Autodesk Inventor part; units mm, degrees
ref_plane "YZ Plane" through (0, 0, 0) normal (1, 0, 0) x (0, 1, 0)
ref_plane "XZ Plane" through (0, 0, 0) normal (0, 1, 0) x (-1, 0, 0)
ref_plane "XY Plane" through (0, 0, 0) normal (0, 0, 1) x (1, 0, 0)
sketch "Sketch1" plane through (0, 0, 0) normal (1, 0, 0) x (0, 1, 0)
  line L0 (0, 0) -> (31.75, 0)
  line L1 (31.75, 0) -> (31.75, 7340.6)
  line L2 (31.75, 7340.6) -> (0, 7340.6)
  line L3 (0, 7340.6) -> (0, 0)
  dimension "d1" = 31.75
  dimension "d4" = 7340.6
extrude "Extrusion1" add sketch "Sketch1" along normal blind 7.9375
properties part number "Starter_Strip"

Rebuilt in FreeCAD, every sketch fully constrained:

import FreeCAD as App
import Part
import Sketcher

V = App.Vector
Q = App.Units.Quantity


def add_polygon(sketch, points):
    """Adds a closed chain of lines whose ends are joined by coincident constraints."""
    first, n = sketch.GeometryCount, len(points)
    for a, b in zip(points, points[1:] + points[:1]):
        sketch.addGeometry(Part.LineSegment(App.Vector(*a, 0), App.Vector(*b, 0)), False)
    for i in range(n):
        sketch.addConstraint(Sketcher.Constraint("Coincident", first + i, 2, first + (i + 1) % n, 1))

doc = App.newDocument("Part")
params = doc.addObject("Spreadsheet::Sheet", "Params")
for row, (alias, value) in enumerate([
    ("sketch1_height", "289 in"),
    ("sketch1_width", "1.25 in"),
    ("pad1_length", "0.3125 in"),
], start=1):
    params.set(f"A{row}", alias)
    params.set(f"B{row}", "=" + value)
    params.setAlias(f"B{row}", alias)

body = doc.addObject("PartDesign::Body", "Body")

sketch1 = doc.addObject("Sketcher::SketchObject", "Sketch")
body.addObject(sketch1)
sketch1.AttachmentSupport = (doc.YZ_Plane, [""])
sketch1.MapMode = "FlatFace"
add_polygon(sketch1, [(0, 7341), (0, 0), (32, 0), (32, 7341)])
sketch1.addConstraint([
    Sketcher.Constraint("Vertical", 0),
    Sketcher.Constraint("Horizontal", 1),
    Sketcher.Constraint("Vertical", 2),
    Sketcher.Constraint("Horizontal", 3),
    Sketcher.Constraint("Coincident", 0, 2, -1, 1),
    Sketcher.Constraint("DistanceY", 0, 2, 0, 1, Q("289 in")),
    Sketcher.Constraint("DistanceX", 1, 1, 1, 2, Q("1.25 in")),
])
sketch1.setExpression("Constraints[9]", "Params.sketch1_height")
sketch1.setExpression("Constraints[10]", "Params.sketch1_width")
pad1 = doc.addObject("PartDesign::Pad", "Pad")
body.addObject(pad1)
pad1.Profile = sketch1
pad1.setExpression("Length", "Params.pad1_length")

doc.recompute()
